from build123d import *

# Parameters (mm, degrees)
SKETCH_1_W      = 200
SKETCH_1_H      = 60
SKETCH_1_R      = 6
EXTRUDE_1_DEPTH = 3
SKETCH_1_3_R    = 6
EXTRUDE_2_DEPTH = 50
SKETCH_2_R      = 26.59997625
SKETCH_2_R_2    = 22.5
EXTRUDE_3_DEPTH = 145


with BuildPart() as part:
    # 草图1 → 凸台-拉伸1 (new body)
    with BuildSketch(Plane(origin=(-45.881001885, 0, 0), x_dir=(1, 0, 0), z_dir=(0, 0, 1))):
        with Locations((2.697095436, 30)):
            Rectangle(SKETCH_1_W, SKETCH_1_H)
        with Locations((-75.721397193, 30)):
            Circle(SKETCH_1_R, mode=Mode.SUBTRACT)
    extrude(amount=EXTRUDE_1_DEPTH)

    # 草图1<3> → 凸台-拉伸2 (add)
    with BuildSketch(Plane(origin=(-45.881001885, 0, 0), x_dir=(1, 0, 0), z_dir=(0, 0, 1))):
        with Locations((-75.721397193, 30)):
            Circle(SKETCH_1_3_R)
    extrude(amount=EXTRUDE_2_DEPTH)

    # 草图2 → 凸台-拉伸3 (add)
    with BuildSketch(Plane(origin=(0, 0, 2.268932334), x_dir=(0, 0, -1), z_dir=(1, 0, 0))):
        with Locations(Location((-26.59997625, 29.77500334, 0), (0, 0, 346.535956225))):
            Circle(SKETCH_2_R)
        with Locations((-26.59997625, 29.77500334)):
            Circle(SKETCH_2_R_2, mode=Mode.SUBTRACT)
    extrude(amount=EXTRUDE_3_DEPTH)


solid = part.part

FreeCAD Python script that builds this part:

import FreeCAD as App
import Part
import Sketcher


def add_polygon(sketch, points):
    """Adds a closed chain of lines whose ends are joined by coincident constraints."""
    first, n = sketch.GeometryCount, len(points)
    for a, b in zip(points, points[1:] + points[:1]):
        sketch.addGeometry(Part.LineSegment(App.Vector(*a, 0), App.Vector(*b, 0)), False)
    for i in range(n):
        sketch.addConstraint(Sketcher.Constraint("Coincident", first + i, 2, first + (i + 1) % n, 1))

doc = App.newDocument("Part")
body = doc.addObject("PartDesign::Body", "Body")

# Sketch on XY plane
sketch1 = body.newObject("Sketcher::SketchObject", "Sketch")
sketch1.AttachmentSupport = (doc.getObject("XY_Plane"), [""])
sketch1.MapMode = "FlatFace"
add_polygon(sketch1, [(-143, 60), (-143, 0), (57, 0), (57, 60)])  # lines 0-3
sketch1.addGeometry(Part.Circle(App.Vector(-122, 30, 0), App.Vector(0, 0, 1), 6), False)  # 4
sketch1.addConstraint([
    Sketcher.Constraint("Vertical", 0),
    Sketcher.Constraint("Horizontal", 1),
    Sketcher.Constraint("Vertical", 2),
    Sketcher.Constraint("Horizontal", 3),
    Sketcher.Constraint("PointOnObject", 0, 2, -1),
    Sketcher.Constraint("Diameter", 4, 12.0),
    Sketcher.Constraint("DistanceX", 1, 1, 1, 2, 200.0),
    Sketcher.Constraint("DistanceY", 0, 2, 0, 1, 60.0),
    Sketcher.Constraint("DistanceY", -1, 1, 4, 3, 30.0),
    Sketcher.Constraint("DistanceX", 4, 3, -1, 1, 121.602399),
    Sketcher.Constraint("DistanceX", 0, 2, -1, 1, 143.183906),
])
pad1 = body.newObject("PartDesign::Pad", "Pad")
pad1.Profile = sketch1
pad1.Length = 3

# Sketch on XY plane
sketch2 = body.newObject("Sketcher::SketchObject", "Sketch001")
sketch2.AttachmentSupport = (doc.getObject("XY_Plane"), [""])
sketch2.MapMode = "FlatFace"
sketch2.addGeometry(Part.Circle(App.Vector(-122, 30, 0), App.Vector(0, 0, 1), 6), False)
sketch2.addConstraint([
    Sketcher.Constraint("Diameter", 0, 12.0),
    Sketcher.Constraint("DistanceY", -1, 1, 0, 3, 30.0),
    Sketcher.Constraint("DistanceX", 0, 3, -1, 1, 121.602399),
])
pad2 = body.newObject("PartDesign::Pad", "Pad001")
pad2.Profile = sketch2
pad2.Length = 50

# Sketch on YZ plane
sketch3 = body.newObject("Sketcher::SketchObject", "Sketch002")
sketch3.AttachmentSupport = (doc.getObject("YZ_Plane"), [""])
sketch3.MapMode = "FlatFace"
sketch3.addGeometry([
    Part.Circle(App.Vector(30, 29, 0), App.Vector(0, 0, 1), 27),
    Part.Circle(App.Vector(30, 29, 0), App.Vector(0, 0, 1), 22),
], False)
sketch3.addConstraint([
    Sketcher.Constraint("Coincident", 1, 3, 0, 3),
    Sketcher.Constraint("Diameter", 1, 45.0),
    Sketcher.Constraint("Diameter", 0, 53.199953),
    Sketcher.Constraint("DistanceY", -1, 1, 0, 3, 28.868909),
    Sketcher.Constraint("DistanceX", -1, 1, 0, 3, 29.775003),
])
pad3 = body.newObject("PartDesign::Pad", "Pad002")
pad3.Profile = sketch3
pad3.Length = 145

doc.recompute()
